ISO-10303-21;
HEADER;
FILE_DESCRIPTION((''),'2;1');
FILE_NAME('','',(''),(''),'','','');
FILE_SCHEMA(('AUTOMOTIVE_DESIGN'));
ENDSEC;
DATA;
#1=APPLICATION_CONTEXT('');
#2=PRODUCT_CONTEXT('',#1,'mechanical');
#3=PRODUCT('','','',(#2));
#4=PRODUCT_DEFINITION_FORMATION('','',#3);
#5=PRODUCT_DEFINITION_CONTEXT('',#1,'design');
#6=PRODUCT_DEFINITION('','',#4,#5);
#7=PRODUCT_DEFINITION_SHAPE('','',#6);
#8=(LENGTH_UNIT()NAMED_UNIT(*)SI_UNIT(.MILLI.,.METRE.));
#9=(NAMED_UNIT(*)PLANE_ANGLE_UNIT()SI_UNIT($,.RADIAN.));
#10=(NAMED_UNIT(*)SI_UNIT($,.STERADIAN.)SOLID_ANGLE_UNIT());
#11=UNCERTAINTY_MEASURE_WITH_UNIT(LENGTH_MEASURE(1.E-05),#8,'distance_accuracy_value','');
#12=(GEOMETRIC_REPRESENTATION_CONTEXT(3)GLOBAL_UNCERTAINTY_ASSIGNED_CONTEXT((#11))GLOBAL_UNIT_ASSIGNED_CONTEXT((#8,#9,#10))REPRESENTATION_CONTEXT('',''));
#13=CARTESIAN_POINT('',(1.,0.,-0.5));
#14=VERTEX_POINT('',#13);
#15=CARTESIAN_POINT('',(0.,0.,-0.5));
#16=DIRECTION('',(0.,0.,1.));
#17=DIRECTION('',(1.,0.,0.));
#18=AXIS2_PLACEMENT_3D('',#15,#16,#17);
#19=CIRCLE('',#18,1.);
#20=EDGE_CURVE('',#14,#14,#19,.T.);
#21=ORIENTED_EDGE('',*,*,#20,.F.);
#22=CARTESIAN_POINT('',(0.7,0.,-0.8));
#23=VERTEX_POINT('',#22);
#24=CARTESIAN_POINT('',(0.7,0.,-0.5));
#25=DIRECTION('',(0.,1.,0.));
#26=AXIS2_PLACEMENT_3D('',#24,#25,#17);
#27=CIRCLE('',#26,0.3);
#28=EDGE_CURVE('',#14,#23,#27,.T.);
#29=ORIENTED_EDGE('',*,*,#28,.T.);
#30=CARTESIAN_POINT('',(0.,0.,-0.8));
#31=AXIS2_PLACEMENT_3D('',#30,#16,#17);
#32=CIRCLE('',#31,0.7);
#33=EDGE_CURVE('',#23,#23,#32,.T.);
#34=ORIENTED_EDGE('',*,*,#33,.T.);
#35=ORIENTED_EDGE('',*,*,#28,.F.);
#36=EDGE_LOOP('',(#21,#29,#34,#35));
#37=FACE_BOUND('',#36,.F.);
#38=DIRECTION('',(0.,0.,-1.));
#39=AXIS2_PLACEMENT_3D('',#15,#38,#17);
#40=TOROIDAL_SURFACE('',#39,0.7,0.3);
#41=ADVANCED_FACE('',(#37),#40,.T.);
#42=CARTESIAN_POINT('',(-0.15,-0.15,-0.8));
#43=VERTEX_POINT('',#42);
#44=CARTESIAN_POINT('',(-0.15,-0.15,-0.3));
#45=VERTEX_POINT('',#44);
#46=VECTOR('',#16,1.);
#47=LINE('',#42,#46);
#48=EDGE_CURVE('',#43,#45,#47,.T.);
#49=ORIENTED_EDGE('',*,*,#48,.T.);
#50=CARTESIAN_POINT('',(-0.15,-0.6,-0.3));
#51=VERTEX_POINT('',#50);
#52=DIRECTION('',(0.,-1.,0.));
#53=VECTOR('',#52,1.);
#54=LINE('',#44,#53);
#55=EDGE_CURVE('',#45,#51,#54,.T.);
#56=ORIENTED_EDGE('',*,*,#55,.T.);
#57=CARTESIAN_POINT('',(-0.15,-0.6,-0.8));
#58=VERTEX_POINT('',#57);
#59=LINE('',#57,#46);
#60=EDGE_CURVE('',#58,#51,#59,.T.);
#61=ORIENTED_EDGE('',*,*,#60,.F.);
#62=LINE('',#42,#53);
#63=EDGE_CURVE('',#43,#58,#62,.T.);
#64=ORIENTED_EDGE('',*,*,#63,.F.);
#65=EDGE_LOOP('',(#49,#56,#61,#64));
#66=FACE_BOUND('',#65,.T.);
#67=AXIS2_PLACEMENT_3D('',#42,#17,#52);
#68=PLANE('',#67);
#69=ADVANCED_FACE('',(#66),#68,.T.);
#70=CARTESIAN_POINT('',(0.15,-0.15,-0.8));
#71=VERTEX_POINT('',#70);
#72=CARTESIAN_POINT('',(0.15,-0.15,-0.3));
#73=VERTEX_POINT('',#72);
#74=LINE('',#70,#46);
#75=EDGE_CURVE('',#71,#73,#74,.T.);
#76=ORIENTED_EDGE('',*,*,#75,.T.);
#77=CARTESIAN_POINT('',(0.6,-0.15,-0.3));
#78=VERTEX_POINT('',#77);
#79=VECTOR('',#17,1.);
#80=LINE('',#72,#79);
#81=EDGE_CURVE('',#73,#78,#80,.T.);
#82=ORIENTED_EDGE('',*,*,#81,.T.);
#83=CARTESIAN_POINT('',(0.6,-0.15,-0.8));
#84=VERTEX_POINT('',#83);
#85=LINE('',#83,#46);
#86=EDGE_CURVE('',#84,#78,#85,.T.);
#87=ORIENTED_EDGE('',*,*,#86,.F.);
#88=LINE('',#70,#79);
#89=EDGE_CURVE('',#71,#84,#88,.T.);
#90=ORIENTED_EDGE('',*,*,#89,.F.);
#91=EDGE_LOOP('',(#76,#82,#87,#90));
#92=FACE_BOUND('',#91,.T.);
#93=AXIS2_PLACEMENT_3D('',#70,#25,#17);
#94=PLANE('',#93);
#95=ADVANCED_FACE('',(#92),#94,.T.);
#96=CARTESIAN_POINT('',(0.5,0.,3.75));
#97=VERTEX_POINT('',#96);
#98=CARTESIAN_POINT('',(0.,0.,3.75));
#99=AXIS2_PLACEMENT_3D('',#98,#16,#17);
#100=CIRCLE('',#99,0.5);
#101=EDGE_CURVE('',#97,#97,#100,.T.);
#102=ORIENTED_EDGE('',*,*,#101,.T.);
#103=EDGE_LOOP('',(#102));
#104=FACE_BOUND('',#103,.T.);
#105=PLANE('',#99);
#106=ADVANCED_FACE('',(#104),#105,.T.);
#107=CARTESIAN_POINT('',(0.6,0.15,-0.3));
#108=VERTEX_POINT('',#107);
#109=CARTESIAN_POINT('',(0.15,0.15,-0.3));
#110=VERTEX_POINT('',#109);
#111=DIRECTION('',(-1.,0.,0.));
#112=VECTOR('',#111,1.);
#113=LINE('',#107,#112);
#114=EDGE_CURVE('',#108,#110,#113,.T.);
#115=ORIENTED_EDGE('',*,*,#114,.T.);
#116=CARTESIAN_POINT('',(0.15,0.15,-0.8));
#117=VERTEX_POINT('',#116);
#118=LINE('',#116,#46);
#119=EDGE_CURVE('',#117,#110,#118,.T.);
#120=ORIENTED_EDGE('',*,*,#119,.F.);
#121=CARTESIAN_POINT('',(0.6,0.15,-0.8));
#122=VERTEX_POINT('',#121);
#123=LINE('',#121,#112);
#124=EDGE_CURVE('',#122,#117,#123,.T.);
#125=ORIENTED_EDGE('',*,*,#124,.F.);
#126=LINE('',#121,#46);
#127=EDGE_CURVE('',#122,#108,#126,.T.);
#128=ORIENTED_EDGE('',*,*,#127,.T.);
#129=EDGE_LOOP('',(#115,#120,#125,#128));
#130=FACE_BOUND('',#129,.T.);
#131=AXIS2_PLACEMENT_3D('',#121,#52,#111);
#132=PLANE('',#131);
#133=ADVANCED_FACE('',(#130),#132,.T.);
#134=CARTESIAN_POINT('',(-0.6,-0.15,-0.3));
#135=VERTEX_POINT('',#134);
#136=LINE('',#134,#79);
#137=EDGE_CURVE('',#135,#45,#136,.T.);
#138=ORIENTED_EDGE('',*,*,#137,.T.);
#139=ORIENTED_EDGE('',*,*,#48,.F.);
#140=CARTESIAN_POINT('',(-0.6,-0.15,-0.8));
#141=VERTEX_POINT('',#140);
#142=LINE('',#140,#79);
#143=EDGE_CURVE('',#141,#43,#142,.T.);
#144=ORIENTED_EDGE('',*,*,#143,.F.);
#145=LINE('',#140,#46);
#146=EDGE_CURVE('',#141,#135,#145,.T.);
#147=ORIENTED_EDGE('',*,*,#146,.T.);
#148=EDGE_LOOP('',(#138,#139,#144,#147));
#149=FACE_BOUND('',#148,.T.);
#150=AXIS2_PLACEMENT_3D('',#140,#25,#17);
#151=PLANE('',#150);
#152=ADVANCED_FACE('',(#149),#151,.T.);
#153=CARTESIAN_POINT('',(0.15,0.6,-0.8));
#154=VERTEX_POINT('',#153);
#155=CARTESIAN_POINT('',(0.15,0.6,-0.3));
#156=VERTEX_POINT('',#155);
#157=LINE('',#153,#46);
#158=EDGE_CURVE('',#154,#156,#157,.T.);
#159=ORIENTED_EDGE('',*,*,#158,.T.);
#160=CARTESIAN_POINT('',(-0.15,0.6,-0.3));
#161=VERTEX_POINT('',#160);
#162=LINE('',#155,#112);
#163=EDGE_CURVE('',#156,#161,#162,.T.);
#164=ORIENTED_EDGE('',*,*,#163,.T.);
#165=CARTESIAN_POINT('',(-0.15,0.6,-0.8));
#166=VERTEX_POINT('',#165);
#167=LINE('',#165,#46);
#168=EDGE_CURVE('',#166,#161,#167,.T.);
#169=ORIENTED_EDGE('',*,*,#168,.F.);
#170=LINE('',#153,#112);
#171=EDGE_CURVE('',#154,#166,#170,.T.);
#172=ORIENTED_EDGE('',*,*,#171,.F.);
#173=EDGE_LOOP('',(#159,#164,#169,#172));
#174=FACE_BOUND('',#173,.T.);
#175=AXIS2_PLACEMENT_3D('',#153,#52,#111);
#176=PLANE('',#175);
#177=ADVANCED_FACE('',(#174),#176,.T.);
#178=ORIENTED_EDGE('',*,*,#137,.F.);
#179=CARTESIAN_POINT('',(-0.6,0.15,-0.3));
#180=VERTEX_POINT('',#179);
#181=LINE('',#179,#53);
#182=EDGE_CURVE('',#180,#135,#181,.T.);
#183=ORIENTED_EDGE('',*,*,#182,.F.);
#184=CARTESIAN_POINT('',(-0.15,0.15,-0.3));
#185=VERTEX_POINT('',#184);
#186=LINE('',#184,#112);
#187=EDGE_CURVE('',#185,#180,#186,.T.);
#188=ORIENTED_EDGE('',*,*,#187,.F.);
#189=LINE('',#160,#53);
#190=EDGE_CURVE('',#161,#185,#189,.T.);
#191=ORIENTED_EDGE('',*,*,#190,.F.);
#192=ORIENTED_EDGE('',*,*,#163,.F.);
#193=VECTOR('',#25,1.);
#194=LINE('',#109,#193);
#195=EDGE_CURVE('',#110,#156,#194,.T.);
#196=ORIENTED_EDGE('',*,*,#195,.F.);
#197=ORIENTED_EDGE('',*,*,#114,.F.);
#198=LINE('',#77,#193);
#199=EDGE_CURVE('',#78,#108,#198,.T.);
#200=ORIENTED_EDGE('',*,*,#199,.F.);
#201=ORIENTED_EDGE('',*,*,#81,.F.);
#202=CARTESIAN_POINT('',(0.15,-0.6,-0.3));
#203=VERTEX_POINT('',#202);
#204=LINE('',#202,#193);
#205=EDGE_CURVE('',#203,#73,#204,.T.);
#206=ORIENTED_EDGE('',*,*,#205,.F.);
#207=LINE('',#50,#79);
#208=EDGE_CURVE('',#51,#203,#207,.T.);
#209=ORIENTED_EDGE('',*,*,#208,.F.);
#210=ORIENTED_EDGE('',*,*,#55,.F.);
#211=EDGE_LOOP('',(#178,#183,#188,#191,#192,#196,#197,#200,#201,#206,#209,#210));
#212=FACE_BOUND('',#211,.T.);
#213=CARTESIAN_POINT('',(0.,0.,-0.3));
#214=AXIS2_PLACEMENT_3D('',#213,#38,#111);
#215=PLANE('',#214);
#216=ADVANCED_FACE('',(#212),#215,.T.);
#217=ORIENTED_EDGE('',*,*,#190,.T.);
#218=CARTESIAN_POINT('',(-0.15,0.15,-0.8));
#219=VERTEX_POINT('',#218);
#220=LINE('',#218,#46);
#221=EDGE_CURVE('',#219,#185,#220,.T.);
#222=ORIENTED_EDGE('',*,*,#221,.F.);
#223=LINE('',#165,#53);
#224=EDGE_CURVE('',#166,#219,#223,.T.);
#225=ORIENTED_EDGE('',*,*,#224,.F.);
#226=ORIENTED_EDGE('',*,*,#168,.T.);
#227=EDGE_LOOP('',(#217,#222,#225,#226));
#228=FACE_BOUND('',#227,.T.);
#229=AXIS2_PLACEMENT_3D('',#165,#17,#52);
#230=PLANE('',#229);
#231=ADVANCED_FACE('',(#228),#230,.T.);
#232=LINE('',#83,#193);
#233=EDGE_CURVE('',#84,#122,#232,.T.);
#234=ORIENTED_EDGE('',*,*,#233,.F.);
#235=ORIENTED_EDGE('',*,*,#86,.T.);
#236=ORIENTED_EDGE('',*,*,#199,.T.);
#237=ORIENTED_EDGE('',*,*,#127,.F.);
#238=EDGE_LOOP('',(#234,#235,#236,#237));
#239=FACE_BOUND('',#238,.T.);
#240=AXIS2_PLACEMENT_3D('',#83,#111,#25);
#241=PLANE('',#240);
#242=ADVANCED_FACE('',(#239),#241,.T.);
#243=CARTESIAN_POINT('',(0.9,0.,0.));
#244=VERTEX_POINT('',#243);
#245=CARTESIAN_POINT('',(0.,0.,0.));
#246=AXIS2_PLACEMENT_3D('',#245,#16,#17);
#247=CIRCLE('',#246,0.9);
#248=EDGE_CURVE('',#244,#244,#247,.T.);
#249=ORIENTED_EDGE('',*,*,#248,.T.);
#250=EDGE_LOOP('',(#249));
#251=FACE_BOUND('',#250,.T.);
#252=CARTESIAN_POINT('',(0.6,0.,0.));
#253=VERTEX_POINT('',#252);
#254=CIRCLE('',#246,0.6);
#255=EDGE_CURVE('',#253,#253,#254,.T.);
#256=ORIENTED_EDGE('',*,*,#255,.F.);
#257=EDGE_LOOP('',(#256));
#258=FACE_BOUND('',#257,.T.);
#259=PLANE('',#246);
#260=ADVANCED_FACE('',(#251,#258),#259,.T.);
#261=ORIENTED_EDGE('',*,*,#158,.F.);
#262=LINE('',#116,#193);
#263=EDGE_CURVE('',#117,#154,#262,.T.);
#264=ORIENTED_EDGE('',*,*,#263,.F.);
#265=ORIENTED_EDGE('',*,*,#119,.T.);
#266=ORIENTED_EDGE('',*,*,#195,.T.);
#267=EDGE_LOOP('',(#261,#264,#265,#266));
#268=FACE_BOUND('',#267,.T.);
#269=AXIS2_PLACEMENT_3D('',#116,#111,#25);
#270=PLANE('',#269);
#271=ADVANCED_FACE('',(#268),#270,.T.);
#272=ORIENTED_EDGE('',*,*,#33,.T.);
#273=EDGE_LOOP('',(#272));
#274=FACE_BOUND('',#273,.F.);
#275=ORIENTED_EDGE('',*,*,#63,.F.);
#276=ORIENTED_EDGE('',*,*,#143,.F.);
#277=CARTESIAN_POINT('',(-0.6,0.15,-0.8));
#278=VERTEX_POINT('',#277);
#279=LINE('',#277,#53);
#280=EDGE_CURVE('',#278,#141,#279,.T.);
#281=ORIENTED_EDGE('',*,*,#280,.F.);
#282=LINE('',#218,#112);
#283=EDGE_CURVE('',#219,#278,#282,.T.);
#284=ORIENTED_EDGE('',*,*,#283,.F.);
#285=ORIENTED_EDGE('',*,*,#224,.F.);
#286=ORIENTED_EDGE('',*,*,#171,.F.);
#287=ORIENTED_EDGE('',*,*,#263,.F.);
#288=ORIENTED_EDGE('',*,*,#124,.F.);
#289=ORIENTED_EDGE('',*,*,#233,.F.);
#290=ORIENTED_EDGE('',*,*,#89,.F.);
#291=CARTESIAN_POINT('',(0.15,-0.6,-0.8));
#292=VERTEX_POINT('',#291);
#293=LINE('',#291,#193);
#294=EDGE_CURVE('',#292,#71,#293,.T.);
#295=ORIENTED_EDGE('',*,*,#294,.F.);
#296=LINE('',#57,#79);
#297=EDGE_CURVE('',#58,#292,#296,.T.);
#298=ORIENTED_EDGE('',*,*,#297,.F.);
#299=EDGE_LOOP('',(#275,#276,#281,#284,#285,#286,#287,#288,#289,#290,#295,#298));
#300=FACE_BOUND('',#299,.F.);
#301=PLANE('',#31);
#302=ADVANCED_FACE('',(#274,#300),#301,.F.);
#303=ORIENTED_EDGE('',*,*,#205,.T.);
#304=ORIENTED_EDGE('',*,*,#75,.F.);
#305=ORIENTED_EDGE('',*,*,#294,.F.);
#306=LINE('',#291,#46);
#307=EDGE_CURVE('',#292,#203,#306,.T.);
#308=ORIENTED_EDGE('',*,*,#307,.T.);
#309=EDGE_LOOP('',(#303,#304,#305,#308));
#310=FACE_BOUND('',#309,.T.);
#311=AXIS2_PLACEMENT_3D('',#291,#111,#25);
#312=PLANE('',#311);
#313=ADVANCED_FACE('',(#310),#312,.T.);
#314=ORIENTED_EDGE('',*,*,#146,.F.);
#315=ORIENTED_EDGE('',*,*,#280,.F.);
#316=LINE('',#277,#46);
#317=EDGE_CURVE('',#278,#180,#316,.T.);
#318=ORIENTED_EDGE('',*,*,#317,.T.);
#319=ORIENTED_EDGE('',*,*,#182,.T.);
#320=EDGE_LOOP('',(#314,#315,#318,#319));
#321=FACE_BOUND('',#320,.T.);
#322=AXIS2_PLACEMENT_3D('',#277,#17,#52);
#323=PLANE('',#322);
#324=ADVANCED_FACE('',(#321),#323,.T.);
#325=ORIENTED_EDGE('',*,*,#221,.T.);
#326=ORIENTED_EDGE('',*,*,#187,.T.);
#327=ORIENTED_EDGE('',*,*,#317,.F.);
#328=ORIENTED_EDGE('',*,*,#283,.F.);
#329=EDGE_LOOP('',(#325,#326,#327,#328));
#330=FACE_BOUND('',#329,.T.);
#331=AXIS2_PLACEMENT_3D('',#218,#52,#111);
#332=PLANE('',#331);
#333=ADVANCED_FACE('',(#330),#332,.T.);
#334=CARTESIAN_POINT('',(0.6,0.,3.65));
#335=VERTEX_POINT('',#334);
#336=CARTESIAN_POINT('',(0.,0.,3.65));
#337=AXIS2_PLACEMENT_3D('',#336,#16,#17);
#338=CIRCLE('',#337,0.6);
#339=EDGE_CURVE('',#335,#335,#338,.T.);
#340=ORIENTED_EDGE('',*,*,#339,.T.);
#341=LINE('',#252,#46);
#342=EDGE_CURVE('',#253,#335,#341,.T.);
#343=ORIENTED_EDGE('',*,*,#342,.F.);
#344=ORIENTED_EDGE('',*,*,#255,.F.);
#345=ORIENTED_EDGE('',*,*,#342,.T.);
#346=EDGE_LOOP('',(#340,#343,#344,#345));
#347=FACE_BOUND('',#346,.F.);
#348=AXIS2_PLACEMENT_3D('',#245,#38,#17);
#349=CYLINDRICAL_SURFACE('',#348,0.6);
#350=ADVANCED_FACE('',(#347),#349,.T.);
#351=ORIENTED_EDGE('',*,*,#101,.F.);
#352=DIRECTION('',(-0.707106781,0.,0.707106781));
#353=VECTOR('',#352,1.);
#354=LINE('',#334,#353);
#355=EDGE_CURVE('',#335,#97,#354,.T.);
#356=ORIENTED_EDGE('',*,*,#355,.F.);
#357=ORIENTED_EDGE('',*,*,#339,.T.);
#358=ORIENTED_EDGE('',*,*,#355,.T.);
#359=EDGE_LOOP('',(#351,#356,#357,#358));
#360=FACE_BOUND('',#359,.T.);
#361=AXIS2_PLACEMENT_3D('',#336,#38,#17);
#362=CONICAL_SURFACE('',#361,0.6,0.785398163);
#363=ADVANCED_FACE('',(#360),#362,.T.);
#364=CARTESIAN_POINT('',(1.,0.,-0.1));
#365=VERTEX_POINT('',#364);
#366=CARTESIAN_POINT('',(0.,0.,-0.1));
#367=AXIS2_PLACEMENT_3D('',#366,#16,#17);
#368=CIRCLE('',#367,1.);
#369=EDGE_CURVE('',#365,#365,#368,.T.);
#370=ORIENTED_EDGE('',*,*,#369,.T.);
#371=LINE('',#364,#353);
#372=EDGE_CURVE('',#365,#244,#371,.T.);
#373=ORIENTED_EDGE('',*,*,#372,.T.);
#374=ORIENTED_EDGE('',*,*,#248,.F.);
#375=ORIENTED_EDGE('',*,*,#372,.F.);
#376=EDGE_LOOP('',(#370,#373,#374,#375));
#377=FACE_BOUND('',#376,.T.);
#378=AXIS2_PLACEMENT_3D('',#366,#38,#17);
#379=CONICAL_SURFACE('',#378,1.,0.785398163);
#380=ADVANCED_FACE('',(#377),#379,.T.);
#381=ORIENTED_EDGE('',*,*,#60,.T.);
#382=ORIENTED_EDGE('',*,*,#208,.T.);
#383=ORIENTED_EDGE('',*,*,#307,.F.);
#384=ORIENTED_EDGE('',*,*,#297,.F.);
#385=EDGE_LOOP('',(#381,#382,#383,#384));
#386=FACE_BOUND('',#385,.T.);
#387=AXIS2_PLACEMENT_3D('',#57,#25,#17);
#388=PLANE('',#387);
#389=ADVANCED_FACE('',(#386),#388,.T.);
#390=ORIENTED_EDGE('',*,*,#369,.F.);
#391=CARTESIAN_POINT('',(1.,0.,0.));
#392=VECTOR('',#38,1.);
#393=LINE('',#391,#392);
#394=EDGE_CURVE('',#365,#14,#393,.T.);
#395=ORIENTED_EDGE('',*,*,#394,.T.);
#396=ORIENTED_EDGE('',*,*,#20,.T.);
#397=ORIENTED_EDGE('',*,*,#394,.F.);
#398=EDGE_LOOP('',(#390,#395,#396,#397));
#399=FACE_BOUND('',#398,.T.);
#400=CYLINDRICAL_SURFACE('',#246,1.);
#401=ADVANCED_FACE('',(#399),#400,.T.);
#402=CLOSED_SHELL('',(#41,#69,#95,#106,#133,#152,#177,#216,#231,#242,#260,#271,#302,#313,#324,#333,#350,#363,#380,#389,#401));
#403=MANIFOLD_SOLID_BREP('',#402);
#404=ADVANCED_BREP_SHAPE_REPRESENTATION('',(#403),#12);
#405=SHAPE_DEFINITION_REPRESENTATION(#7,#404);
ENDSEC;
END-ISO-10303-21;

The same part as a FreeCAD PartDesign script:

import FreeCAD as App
import Part
import Sketcher


def edges_at(feature, points):
    """Names of the edges that pass closest to the given points."""
    edges = feature.Shape.Edges
    near = lambda p: min(range(len(edges)), key=lambda i: edges[i].distToShape(Part.Vertex(*p))[0])
    return sorted({f"Edge{near(p) + 1}" for p in points})


def add_polygon(sketch, points):
    """Adds a closed chain of lines whose ends are joined by coincident constraints."""
    first, n = sketch.GeometryCount, len(points)
    for a, b in zip(points, points[1:] + points[:1]):
        sketch.addGeometry(Part.LineSegment(App.Vector(*a, 0), App.Vector(*b, 0)), False)
    for i in range(n):
        sketch.addConstraint(Sketcher.Constraint("Coincident", first + i, 2, first + (i + 1) % n, 1))

doc = App.newDocument("Part")
body = doc.addObject("PartDesign::Body", "Body")

# Sketch on XY plane
sketch1 = doc.addObject("Sketcher::SketchObject", "Sketch")
body.addObject(sketch1)
sketch1.AttachmentSupport = (doc.XY_Plane, [""])
sketch1.MapMode = "FlatFace"
sketch1.addGeometry(Part.Circle(App.Vector(0, 0, 0), App.Vector(0, 0, 1), 1), False)
sketch1.addConstraint([
    Sketcher.Constraint("Coincident", 0, 3, -1, 1),
    Sketcher.Constraint("Diameter", 0, 2.0),
])
pad1 = doc.addObject("PartDesign::Pad", "Pad")
body.addObject(pad1)
pad1.Profile = sketch1
pad1.Length = 0.8
pad1.Reversed = True

# Sketch on XY plane
sketch2 = doc.addObject("Sketcher::SketchObject", "Sketch001")
body.addObject(sketch2)
sketch2.AttachmentSupport = (doc.XY_Plane, [""])
sketch2.MapMode = "FlatFace"
sketch2.addGeometry(Part.Circle(App.Vector(0, 0, 0), App.Vector(0, 0, 1), 0.6), False)
sketch2.addConstraint([
    Sketcher.Constraint("Coincident", 0, 3, -1, 1),
    Sketcher.Constraint("Diameter", 0, 1.2),
])
pad2 = doc.addObject("PartDesign::Pad", "Pad001")
body.addObject(pad2)
pad2.Profile = sketch2
pad2.Length = 3.75
doc.recompute()

fillet = doc.addObject("PartDesign::Fillet", "Fillet")
body.addObject(fillet)
fillet.Base = (pad2, edges_at(pad2, [(-1, 0, -0.8)]))
fillet.Radius = 0.3
doc.recompute()

chamfer = doc.addObject("PartDesign::Chamfer", "Chamfer")
body.addObject(chamfer)
chamfer.Base = (fillet, edges_at(fillet, [(-1, 0, 0), (-0.6, 0, 3.75)]))
chamfer.Size = 0.1

# Sketch on XY plane
sketch3 = doc.addObject("Sketcher::SketchObject", "Sketch002")
body.addObject(sketch3)
sketch3.AttachmentSupport = (doc.XY_Plane, [""])
sketch3.MapMode = "FlatFace"
sketch3.AttachmentOffset = App.Placement(App.Vector(0, 0, -0.8), App.Rotation())
add_polygon(sketch3, [(0.15, 0.6), (0.15, 0.15), (0.6, 0.15), (0.6, -0.15), (0.15, -0.15), (0.15, -0.6), (-0.15, -0.6), (-0.15, -0.15), (-0.6, -0.15), (-0.6, 0.15), (-0.15, 0.15), (-0.15, 0.6)])  # lines 0-11
sketch3.addConstraint([
    Sketcher.Constraint("Vertical", 0),
    Sketcher.Constraint("Horizontal", 1),
    Sketcher.Constraint("Vertical", 2),
    Sketcher.Constraint("Horizontal", 3),
    Sketcher.Constraint("Vertical", 4),
    Sketcher.Constraint("Horizontal", 5),
    Sketcher.Constraint("Vertical", 6),
    Sketcher.Constraint("Horizontal", 7),
    Sketcher.Constraint("Vertical", 8),
    Sketcher.Constraint("Horizontal", 9),
    Sketcher.Constraint("Vertical", 10),
    Sketcher.Constraint("Horizontal", 11),
    Sketcher.Constraint("Symmetric", 0, 2, 6, 2, -1, 1),
    Sketcher.Constraint("Symmetric", 2, 2, 8, 2, -1, 1),
    Sketcher.Constraint("Symmetric", 4, 2, 10, 2, -1, 1),
    Sketcher.Constraint("Symmetric", 3, 2, 6, 2, -2),
    Sketcher.Constraint("Equal", 9, 0),
    Sketcher.Constraint("Equal", 11, 2),
    Sketcher.Constraint("DistanceX", 5, 2, 5, 1, 0.3),
    Sketcher.Constraint("DistanceX", 1, 1, 1, 2, 0.45),
])
pocket1 = doc.addObject("PartDesign::Pocket", "Pocket")
body.addObject(pocket1)
pocket1.Profile = sketch3
pocket1.Length = 0.5
pocket1.Reversed = True

doc.recompute()
